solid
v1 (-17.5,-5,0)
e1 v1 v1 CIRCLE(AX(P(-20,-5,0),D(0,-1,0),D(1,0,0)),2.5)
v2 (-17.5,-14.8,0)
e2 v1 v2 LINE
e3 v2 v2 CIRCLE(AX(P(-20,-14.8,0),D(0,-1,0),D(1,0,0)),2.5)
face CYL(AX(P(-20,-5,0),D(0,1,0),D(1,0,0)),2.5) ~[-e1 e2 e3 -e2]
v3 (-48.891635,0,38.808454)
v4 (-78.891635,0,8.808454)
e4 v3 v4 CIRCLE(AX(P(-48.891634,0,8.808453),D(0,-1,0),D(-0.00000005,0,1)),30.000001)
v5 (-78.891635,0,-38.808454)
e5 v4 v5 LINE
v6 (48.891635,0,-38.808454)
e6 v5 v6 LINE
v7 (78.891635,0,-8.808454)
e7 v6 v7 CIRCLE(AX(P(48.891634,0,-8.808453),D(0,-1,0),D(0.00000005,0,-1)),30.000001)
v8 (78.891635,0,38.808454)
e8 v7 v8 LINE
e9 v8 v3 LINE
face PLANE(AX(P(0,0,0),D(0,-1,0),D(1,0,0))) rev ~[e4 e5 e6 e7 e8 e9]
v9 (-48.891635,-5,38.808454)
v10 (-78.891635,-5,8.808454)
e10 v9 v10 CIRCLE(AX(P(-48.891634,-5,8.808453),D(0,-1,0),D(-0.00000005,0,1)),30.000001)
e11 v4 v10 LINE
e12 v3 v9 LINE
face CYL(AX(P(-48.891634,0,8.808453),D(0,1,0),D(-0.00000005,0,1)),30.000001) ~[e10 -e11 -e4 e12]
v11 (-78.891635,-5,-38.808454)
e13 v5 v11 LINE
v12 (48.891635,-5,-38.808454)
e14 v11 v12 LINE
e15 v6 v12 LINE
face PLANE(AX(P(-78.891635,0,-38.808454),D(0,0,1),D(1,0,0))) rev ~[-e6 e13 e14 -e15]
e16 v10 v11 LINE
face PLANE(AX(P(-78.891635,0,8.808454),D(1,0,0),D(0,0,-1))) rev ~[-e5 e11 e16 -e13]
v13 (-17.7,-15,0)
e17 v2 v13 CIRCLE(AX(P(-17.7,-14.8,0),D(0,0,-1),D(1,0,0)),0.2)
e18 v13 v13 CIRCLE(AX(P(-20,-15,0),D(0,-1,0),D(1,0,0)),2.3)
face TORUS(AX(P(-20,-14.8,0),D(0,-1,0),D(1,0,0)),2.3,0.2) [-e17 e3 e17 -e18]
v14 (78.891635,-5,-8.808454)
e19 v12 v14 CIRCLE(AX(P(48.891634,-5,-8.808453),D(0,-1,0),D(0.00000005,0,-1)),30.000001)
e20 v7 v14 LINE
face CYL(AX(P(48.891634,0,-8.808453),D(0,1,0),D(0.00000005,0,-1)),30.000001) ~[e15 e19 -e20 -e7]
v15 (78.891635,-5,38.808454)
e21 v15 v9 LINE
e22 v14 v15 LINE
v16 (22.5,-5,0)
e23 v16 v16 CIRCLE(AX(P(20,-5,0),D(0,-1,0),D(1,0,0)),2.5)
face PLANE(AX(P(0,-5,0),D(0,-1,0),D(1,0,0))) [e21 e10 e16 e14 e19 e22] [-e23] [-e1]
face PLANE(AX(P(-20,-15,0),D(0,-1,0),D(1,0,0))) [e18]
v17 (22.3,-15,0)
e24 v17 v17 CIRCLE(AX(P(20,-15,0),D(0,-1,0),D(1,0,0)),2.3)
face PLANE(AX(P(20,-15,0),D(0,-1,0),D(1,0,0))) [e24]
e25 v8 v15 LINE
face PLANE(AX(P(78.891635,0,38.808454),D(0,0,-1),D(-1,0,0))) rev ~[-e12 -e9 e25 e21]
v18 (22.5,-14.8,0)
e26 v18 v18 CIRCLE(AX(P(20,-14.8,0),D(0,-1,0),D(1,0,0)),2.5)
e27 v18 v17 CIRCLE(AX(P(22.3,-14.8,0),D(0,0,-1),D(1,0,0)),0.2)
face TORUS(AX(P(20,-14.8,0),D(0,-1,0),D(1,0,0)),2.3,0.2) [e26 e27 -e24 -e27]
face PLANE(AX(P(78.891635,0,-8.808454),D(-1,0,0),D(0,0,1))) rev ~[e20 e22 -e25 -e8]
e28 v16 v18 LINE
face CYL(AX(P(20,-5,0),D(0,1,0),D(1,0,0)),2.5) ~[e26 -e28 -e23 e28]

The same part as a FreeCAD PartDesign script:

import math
import FreeCAD as App
import Part
import Sketcher


def edges_at(feature, points):
    """Names of the edges that pass closest to the given points."""
    edges = feature.Shape.Edges
    near = lambda p: min(range(len(edges)), key=lambda i: edges[i].distToShape(Part.Vertex(*p))[0])
    return sorted({f"Edge{near(p) + 1}" for p in points})

doc = App.newDocument("Part")
body = doc.addObject("PartDesign::Body", "Body")

sketch1 = body.newObject("Sketcher::SketchObject", "Sketch")
sketch1.AttachmentSupport = (doc.getObject("XZ_Plane"), [""])
sketch1.MapMode = "FlatFace"
sketch1.addGeometry([
    Part.LineSegment(App.Vector(78.891635, -8.808454, 0), App.Vector(78.891635, 38.808454, 0)),
    Part.LineSegment(App.Vector(78.891635, 38.808454, 0), App.Vector(-48.891635, 38.808454, 0)),
    Part.ArcOfCircle(Part.Circle(App.Vector(-48.891634, 8.808453, 0), App.Vector(0, 0, 1), 30.000001), math.radians(90.000003), math.radians(179.999997)),
    Part.LineSegment(App.Vector(-78.891635, 8.808454, 0), App.Vector(-78.891635, -38.808454, 0)),
    Part.LineSegment(App.Vector(-78.891635, -38.808454, 0), App.Vector(48.891635, -38.808454, 0)),
    Part.ArcOfCircle(Part.Circle(App.Vector(48.891634, -8.808453, 0), App.Vector(0, 0, 1), 30.000001), math.radians(-89.999997), math.radians(-0.000003)),
], False)
sketch1.addConstraint([
    Sketcher.Constraint("Coincident", 0, 2, 1, 1),
    Sketcher.Constraint("Tangent", 1, 2, 2, 1),
    Sketcher.Constraint("Tangent", 2, 2, 3, 1),
    Sketcher.Constraint("Coincident", 3, 2, 4, 1),
    Sketcher.Constraint("Tangent", 4, 2, 5, 1),
    Sketcher.Constraint("Tangent", 5, 2, 0, 1),
    Sketcher.Constraint("Vertical", 0),
    Sketcher.Constraint("Horizontal", 1),
    Sketcher.Constraint("Vertical", 3),
    Sketcher.Constraint("Horizontal", 4),
    Sketcher.Constraint("Equal", 2, 5),
    Sketcher.Constraint("Symmetric", 2, 3, 5, 3, -1, 1),
    Sketcher.Constraint("Radius", 2, 30.000001),
    Sketcher.Constraint("DistanceX", 1, 2, 1, 1, 127.78327),
    Sketcher.Constraint("DistanceY", 0, 1, 0, 2, 47.616908),
])
pad1 = body.newObject("PartDesign::Pad", "Pad")
pad1.Profile = sketch1
pad1.Length = 5

sketch2 = body.newObject("Sketcher::SketchObject", "Sketch001")
sketch2.AttachmentSupport = (doc.getObject("XZ_Plane"), [""])
sketch2.MapMode = "FlatFace"
sketch2.AttachmentOffset = App.Placement(App.Vector(0, 0, 5), App.Rotation())
sketch2.addGeometry([
    Part.Circle(App.Vector(-20, 0, 0), App.Vector(0, 0, 1), 2.5),
    Part.Circle(App.Vector(20, 0, 0), App.Vector(0, 0, 1), 2.5),
], False)
sketch2.addConstraint([
    Sketcher.Constraint("Equal", 0, 1),
    Sketcher.Constraint("Symmetric", 0, 3, 1, 3, -1, 1),
    Sketcher.Constraint("PointOnObject", 0, 3, -1),
    Sketcher.Constraint("Diameter", 0, 5.0),
    Sketcher.Constraint("DistanceX", 0, 3, -1, 1, 20.0),
])
pad2 = body.newObject("PartDesign::Pad", "Pad001")
pad2.Profile = sketch2
pad2.Length = 10
doc.recompute()

fillet = body.newObject("PartDesign::Fillet", "Fillet")
fillet.Base = (pad2, edges_at(pad2, [(-22.5, -15, 0), (17.5, -15, 0)]))
fillet.Radius = 0.2

doc.recompute()
